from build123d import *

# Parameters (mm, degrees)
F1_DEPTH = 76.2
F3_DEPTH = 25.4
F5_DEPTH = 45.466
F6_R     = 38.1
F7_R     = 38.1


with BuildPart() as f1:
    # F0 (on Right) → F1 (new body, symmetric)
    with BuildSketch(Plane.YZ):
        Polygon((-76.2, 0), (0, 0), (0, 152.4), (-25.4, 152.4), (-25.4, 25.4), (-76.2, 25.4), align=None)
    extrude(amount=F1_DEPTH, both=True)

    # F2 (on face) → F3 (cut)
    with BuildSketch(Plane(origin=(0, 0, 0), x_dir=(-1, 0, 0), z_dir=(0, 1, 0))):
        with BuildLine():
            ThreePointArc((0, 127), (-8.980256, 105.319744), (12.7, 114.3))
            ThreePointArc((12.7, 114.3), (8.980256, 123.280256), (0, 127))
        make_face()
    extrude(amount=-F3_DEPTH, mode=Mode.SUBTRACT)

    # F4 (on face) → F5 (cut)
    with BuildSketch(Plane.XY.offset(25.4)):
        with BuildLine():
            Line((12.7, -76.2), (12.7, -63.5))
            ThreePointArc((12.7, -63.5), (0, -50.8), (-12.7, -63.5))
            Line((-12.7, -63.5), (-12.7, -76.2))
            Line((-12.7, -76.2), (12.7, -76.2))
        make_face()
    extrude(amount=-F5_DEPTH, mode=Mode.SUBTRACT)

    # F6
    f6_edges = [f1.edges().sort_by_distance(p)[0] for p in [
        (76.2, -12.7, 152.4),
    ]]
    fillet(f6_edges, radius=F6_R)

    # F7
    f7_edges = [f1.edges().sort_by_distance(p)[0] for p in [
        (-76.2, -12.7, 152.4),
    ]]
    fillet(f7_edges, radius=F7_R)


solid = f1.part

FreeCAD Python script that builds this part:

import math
import FreeCAD as App
import Part
import Sketcher
from FreeCAD import Vector
Q = App.Units.Quantity


def edges_at(feature, points):
    """Names of the edges that pass closest to the given points."""
    edges = feature.Shape.Edges
    near = lambda p: min(range(len(edges)), key=lambda i: edges[i].distToShape(Part.Vertex(*p))[0])
    return sorted({f"Edge{near(p) + 1}" for p in points})


def add_polygon(sketch, points):
    """Adds a closed chain of lines whose ends are joined by coincident constraints."""
    first, n = sketch.GeometryCount, len(points)
    for a, b in zip(points, points[1:] + points[:1]):
        sketch.addGeometry(Part.LineSegment(App.Vector(*a, 0), App.Vector(*b, 0)), False)
    for i in range(n):
        sketch.addConstraint(Sketcher.Constraint("Coincident", first + i, 2, first + (i + 1) % n, 1))

doc = App.newDocument("Part")
body = doc.addObject("PartDesign::Body", "Body")

sketch1 = doc.addObject("Sketcher::SketchObject", "Sketch")
body.addObject(sketch1)
sketch1.AttachmentSupport = (doc.YZ_Plane, [""])
sketch1.MapMode = "FlatFace"
add_polygon(sketch1, [(-76.2, 0), (0, 0), (0, 152.4), (-25.4, 152.4), (-25.4, 25.4), (-76.2, 25.4)])
sketch1.addConstraint(Sketcher.Constraint("Horizontal", 0))
sketch1.addConstraint(Sketcher.Constraint("Vertical", 1))
sketch1.addConstraint(Sketcher.Constraint("Horizontal", 2))
sketch1.addConstraint(Sketcher.Constraint("Vertical", 3))
sketch1.addConstraint(Sketcher.Constraint("Horizontal", 4))
sketch1.addConstraint(Sketcher.Constraint("Vertical", 5))
sketch1.addConstraint(Sketcher.Constraint("Coincident", 0, 2, -1, 1))
sketch1.addConstraint(Sketcher.Constraint("Equal", 2, 5))
sketch1.addConstraint(Sketcher.Constraint("DistanceX", 0, 1, 0, 2, Q("3 in")))
sketch1.addConstraint(Sketcher.Constraint("DistanceX", 2, 2, 2, 1, Q("1 in")))
sketch1.addConstraint(Sketcher.Constraint("DistanceY", 1, 1, 1, 2, Q("6 in")))
pad1 = doc.addObject("PartDesign::Pad", "Pad")
body.addObject(pad1)
pad1.Profile = sketch1
pad1.Length = Q("6 in")
pad1.Midplane = True

sketch2 = doc.addObject("Sketcher::SketchObject", "Sketch001")
body.addObject(sketch2)
sketch2.AttachmentSupport = (doc.XZ_Plane, [""])
sketch2.MapMode = "FlatFace"
sketch2.addGeometry(Part.ArcOfCircle(Part.Circle(Vector(0, 114.3, 0), Vector(0, 0, 1), 12.7), math.radians(-180), math.radians(90)), False)
sketch2.addGeometry(Part.ArcOfCircle(Part.Circle(Vector(0, 114.3, 0), Vector(0, 0, 1), 12.7), math.radians(90.000002), math.radians(179.999998)), False)
sketch2.addConstraint(Sketcher.Constraint("Tangent", 0, 1, 1, 2))
sketch2.addConstraint(Sketcher.Constraint("Coincident", 1, 1, 0, 2))
sketch2.addConstraint(Sketcher.Constraint("PointOnObject", 0, 3, -2))
sketch2.addConstraint(Sketcher.Constraint("PointOnObject", 1, 1, -2))
sketch2.addConstraint(Sketcher.Constraint("Horizontal", 1, 3, 0, 1))
sketch2.addConstraint(Sketcher.Constraint("Radius", 0, Q("0.5 in")))
sketch2.addConstraint(Sketcher.Constraint("DistanceY", -1, 1, 1, 1, Q("5 in")))
pocket1 = doc.addObject("PartDesign::Pocket", "Pocket")
body.addObject(pocket1)
pocket1.Profile = sketch2
pocket1.Length = Q("1 in")
pocket1.Reversed = True

sketch3 = doc.addObject("Sketcher::SketchObject", "Sketch002")
body.addObject(sketch3)
sketch3.AttachmentSupport = (doc.XY_Plane, [""])
sketch3.MapMode = "FlatFace"
sketch3.AttachmentOffset = App.Placement(Vector(0, 0, 1 * 25.4), App.Rotation())
sketch3.addGeometry(Part.LineSegment(Vector(12.7, -76.2, 0), Vector(12.7, -63.5, 0)), False)
sketch3.addGeometry(Part.ArcOfCircle(Part.Circle(Vector(0, -63.5, 0), Vector(0, 0, 1), 12.7), math.radians(0), math.radians(180)), False)
sketch3.addGeometry(Part.LineSegment(Vector(-12.7, -63.5, 0), Vector(-12.7, -76.2, 0)), False)
sketch3.addGeometry(Part.LineSegment(Vector(-12.7, -76.2, 0), Vector(12.7, -76.2, 0)), False)
sketch3.addConstraint(Sketcher.Constraint("Tangent", 0, 2, 1, 1))
sketch3.addConstraint(Sketcher.Constraint("Tangent", 1, 2, 2, 1))
sketch3.addConstraint(Sketcher.Constraint("Coincident", 2, 2, 3, 1))
sketch3.addConstraint(Sketcher.Constraint("Coincident", 3, 2, 0, 1))
sketch3.addConstraint(Sketcher.Constraint("Vertical", 0))
sketch3.addConstraint(Sketcher.Constraint("Vertical", 2))
sketch3.addConstraint(Sketcher.Constraint("Horizontal", 3))
sketch3.addConstraint(Sketcher.Constraint("PointOnObject", 1, 3, -2))
sketch3.addConstraint(Sketcher.Constraint("Radius", 1, Q("0.5 in")))
sketch3.addConstraint(Sketcher.Constraint("DistanceY", 0, 1, 0, 2, Q("0.5 in")))
sketch3.addConstraint(Sketcher.Constraint("DistanceY", 2, 2, -1, 1, Q("3 in")))
pocket2 = doc.addObject("PartDesign::Pocket", "Pocket001")
body.addObject(pocket2)
pocket2.Profile = sketch3
pocket2.Length = Q("1.79 in")
doc.recompute()

fillet = doc.addObject("PartDesign::Fillet", "Fillet")
body.addObject(fillet)
fillet.Base = (pocket2, edges_at(pocket2, [(76.2, -12.7, 152.4)]))
fillet.Radius = Q("1.5 in")
doc.recompute()

fillet2 = doc.addObject("PartDesign::Fillet", "Fillet001")
body.addObject(fillet2)
fillet2.Base = (fillet, edges_at(fillet, [(-76.2, -12.7, 152.4)]))
fillet2.Radius = Q("1.5 in")

doc.recompute()
